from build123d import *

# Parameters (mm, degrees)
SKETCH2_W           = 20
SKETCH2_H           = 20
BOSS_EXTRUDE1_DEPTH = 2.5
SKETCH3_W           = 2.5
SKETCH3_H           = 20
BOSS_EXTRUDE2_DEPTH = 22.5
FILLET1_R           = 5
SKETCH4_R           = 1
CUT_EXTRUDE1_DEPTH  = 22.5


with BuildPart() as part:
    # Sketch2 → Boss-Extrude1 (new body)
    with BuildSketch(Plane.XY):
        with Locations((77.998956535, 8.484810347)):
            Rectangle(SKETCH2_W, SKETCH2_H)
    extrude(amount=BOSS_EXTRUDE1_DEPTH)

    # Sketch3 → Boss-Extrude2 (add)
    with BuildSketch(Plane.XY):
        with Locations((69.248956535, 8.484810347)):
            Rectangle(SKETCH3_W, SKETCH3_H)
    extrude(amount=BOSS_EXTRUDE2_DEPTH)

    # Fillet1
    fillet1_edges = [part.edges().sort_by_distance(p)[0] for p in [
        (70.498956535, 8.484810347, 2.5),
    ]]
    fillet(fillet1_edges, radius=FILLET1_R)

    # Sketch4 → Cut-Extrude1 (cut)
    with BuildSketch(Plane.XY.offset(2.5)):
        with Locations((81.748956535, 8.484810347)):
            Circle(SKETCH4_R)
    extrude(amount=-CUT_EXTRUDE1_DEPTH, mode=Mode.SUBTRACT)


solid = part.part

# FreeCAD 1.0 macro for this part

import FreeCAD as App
import Part
import Sketcher
from FreeCAD import Vector
Q = App.Units.Quantity


def edges_at(feature, points):
    """Names of the edges that pass closest to the given points."""
    edges = feature.Shape.Edges
    near = lambda p: min(range(len(edges)), key=lambda i: edges[i].distToShape(Part.Vertex(*p))[0])
    return sorted({f"Edge{near(p) + 1}" for p in points})


def add_polygon(sketch, points):
    """Adds a closed chain of lines whose ends are joined by coincident constraints."""
    first, n = sketch.GeometryCount, len(points)
    for a, b in zip(points, points[1:] + points[:1]):
        sketch.addGeometry(Part.LineSegment(App.Vector(*a, 0), App.Vector(*b, 0)), False)
    for i in range(n):
        sketch.addConstraint(Sketcher.Constraint("Coincident", first + i, 2, first + (i + 1) % n, 1))

doc = App.newDocument("Part")
params = doc.addObject("Spreadsheet::Sheet", "Params")
for row, (alias, value) in enumerate([
    ("sketch1_width", "20 mm"),
    ("pad1_length", "2.5 mm"),
    ("sketch2_height", "20 mm"),
    ("sketch2_width", "2.5 mm"),
    ("pad2_length", "22.5 mm"),
    ("fillet_radius", "5 mm"),
    ("sketch3_diameter", "2 mm"),
    ("pocket1_length", "22.5 mm"),
], start=1):
    params.set(f"A{row}", alias)
    params.set(f"B{row}", "=" + value)
    params.setAlias(f"B{row}", alias)

body = doc.addObject("PartDesign::Body", "Body")

# Sketch on XY plane
sketch1 = body.newObject("Sketcher::SketchObject", "Sketch")
sketch1.AttachmentSupport = (doc.getObject("XY_Plane"), [""])
sketch1.MapMode = "FlatFace"
add_polygon(sketch1, [(68, 18), (68, -2), (88, -2), (88, 18)])  # lines 0-3
sketch1.addConstraint([
    Sketcher.Constraint("Vertical", 0),
    Sketcher.Constraint("Horizontal", 1),
    Sketcher.Constraint("Vertical", 2),
    Sketcher.Constraint("Horizontal", 3),
    Sketcher.Constraint("Equal", 3, 0),
    Sketcher.Constraint("DistanceX", 1, 1, 1, 2, Q("20 mm")),
    Sketcher.Constraint("DistanceY", 0, 2, -1, 1, Q("1.51519 mm")),
    Sketcher.Constraint("DistanceX", -1, 1, 0, 2, Q("67.998957 mm")),
])
sketch1.setExpression("Constraints[9]", "Params.sketch1_width")
pad1 = body.newObject("PartDesign::Pad", "Pad")
pad1.Profile = sketch1
pad1.setExpression("Length", "Params.pad1_length")

# Sketch on XY plane
sketch2 = body.newObject("Sketcher::SketchObject", "Sketch001")
sketch2.AttachmentSupport = (doc.getObject("XY_Plane"), [""])
sketch2.MapMode = "FlatFace"
add_polygon(sketch2, [(68, 18.5), (68, -1.5), (70.5, -1.5), (70.5, 18.5)])  # lines 0-3
sketch2.addConstraint([
    Sketcher.Constraint("Vertical", 0),
    Sketcher.Constraint("Horizontal", 1),
    Sketcher.Constraint("Vertical", 2),
    Sketcher.Constraint("Horizontal", 3),
    Sketcher.Constraint("DistanceY", 0, 2, 0, 1, Q("20 mm")),
    Sketcher.Constraint("DistanceX", 1, 1, 1, 2, Q("2.5 mm")),
    Sketcher.Constraint("DistanceY", 0, 2, -1, 1, Q("1.51519 mm")),
    Sketcher.Constraint("DistanceX", -1, 1, 0, 2, Q("67.998957 mm")),
])
sketch2.setExpression("Constraints[8]", "Params.sketch2_height")
sketch2.setExpression("Constraints[9]", "Params.sketch2_width")
pad2 = body.newObject("PartDesign::Pad", "Pad001")
pad2.Profile = sketch2
pad2.setExpression("Length", "Params.pad2_length")
doc.recompute()

fillet = body.newObject("PartDesign::Fillet", "Fillet")
fillet.Base = (pad2, edges_at(pad2, [(70.499, 8.485, 2.5)]))
fillet.setExpression("Radius", "Params.fillet_radius")

# Sketch on XY plane
sketch3 = body.newObject("Sketcher::SketchObject", "Sketch002")
sketch3.AttachmentSupport = (doc.getObject("XY_Plane"), [""])
sketch3.MapMode = "FlatFace"
sketch3.AttachmentOffset = App.Placement(Vector(0, 0, 2.5), App.Rotation())
sketch3.addGeometry(Part.Circle(Vector(81.7, 8.5, 0), Vector(0, 0, 1), 1), False)
sketch3.addConstraint([
    Sketcher.Constraint("Diameter", 0, Q("2 mm")),
    Sketcher.Constraint("DistanceY", -1, 1, 0, 3, Q("8.48481 mm")),
    Sketcher.Constraint("DistanceX", -1, 1, 0, 3, Q("81.748957 mm")),
])
sketch3.setExpression("Constraints[0]", "Params.sketch3_diameter")
pocket1 = body.newObject("PartDesign::Pocket", "Pocket")
pocket1.Profile = sketch3
pocket1.setExpression("Length", "Params.pocket1_length")

doc.recompute()
